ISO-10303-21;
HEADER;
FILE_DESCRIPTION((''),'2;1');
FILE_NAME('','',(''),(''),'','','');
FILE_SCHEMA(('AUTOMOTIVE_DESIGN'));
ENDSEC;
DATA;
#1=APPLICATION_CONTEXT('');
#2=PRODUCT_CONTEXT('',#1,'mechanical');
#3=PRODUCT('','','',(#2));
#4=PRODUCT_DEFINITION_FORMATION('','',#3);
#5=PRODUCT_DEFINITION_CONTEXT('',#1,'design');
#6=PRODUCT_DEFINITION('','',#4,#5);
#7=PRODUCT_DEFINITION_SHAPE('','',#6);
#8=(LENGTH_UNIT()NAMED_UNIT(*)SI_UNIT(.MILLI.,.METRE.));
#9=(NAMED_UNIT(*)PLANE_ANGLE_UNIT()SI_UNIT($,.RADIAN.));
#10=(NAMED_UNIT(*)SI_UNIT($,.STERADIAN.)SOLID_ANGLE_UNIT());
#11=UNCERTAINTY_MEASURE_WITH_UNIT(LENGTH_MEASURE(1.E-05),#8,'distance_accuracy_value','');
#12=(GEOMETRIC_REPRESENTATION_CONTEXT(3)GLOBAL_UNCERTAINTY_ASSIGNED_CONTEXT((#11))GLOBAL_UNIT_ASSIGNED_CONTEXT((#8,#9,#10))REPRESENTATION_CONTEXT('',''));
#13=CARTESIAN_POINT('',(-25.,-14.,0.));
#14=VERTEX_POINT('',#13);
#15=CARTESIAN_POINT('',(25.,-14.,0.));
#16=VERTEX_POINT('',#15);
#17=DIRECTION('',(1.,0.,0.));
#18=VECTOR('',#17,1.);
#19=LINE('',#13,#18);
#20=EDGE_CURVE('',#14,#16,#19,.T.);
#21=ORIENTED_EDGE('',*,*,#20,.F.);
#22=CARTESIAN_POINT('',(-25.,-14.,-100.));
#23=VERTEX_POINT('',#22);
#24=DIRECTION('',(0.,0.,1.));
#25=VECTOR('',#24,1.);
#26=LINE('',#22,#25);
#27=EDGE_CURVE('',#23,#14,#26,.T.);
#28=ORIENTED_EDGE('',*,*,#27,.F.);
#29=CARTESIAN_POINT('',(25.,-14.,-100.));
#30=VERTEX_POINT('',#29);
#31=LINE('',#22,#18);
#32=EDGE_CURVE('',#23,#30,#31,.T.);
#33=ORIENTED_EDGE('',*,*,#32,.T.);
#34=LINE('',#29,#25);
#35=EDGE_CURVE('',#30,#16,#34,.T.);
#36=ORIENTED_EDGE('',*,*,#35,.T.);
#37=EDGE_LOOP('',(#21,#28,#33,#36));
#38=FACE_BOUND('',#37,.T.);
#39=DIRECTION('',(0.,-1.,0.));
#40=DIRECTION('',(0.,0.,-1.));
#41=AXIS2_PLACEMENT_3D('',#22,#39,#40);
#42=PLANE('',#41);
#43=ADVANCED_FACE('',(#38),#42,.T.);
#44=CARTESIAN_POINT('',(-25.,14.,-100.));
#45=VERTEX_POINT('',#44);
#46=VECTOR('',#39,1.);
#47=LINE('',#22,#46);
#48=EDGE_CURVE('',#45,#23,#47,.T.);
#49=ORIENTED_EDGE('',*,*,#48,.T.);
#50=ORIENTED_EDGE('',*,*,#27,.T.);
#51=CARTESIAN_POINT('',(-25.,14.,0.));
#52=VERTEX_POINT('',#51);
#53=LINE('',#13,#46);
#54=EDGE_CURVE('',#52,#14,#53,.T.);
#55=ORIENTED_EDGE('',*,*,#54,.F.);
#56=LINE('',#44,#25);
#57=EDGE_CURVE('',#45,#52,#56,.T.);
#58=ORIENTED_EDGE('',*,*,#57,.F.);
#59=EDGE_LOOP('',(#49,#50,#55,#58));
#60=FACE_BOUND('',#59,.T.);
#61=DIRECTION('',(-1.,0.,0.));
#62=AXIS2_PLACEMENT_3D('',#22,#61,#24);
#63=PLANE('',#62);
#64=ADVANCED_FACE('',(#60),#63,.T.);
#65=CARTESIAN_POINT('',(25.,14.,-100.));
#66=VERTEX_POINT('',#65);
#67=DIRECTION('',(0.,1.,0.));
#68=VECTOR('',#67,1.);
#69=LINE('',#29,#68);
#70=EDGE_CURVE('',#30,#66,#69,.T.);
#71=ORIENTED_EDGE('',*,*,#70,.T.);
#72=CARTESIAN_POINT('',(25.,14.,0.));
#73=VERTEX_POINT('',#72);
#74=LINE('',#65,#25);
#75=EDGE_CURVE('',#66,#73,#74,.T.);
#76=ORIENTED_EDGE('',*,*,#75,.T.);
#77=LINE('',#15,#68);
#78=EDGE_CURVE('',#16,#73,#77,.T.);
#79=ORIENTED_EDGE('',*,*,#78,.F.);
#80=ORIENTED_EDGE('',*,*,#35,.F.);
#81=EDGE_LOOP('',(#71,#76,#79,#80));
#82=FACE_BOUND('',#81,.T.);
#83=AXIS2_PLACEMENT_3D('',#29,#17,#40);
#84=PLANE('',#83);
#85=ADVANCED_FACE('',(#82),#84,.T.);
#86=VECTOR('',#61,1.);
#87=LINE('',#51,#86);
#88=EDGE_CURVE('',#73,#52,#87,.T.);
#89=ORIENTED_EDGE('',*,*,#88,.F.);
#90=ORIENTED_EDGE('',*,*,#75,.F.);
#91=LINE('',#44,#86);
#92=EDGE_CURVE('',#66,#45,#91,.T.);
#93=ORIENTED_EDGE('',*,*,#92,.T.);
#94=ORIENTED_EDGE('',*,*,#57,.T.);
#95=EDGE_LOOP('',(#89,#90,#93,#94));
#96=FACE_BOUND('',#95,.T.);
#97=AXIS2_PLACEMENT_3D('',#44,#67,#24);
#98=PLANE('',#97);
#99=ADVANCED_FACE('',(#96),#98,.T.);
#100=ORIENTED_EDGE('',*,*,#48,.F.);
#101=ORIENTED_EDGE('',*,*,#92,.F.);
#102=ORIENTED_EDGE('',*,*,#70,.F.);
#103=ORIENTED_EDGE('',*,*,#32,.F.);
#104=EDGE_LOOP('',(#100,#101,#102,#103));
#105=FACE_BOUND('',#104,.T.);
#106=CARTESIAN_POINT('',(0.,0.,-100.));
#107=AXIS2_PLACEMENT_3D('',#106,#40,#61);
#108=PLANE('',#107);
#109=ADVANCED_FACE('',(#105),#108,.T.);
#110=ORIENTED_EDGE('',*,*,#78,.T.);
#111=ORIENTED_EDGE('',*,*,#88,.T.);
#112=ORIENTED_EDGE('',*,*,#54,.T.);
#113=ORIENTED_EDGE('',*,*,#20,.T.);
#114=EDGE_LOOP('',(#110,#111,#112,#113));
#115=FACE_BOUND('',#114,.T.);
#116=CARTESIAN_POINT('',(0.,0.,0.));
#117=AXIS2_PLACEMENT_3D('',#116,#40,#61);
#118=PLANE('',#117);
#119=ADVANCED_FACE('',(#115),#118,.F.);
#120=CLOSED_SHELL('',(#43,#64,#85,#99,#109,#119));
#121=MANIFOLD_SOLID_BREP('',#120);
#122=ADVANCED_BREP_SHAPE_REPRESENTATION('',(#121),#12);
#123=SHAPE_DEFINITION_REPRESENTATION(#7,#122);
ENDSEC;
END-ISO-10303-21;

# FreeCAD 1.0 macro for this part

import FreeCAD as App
import Part
import Sketcher

V = App.Vector


def add_polygon(sketch, points):
    """Adds a closed chain of lines whose ends are joined by coincident constraints."""
    first, n = sketch.GeometryCount, len(points)
    for a, b in zip(points, points[1:] + points[:1]):
        sketch.addGeometry(Part.LineSegment(App.Vector(*a, 0), App.Vector(*b, 0)), False)
    for i in range(n):
        sketch.addConstraint(Sketcher.Constraint("Coincident", first + i, 2, first + (i + 1) % n, 1))

doc = App.newDocument("Part")
body = doc.addObject("PartDesign::Body", "Body")

# Sketch on XY plane
sketch1 = body.newObject("Sketcher::SketchObject", "Sketch")
sketch1.AttachmentSupport = (doc.getObject("XY_Plane"), [""])
sketch1.MapMode = "FlatFace"
add_polygon(sketch1, [(-25, 14), (-25, -14), (25, -14), (25, 14)])  # lines 0-3
sketch1.addConstraint(Sketcher.Constraint("Vertical", 0))
sketch1.addConstraint(Sketcher.Constraint("Horizontal", 1))
sketch1.addConstraint(Sketcher.Constraint("Vertical", 2))
sketch1.addConstraint(Sketcher.Constraint("Horizontal", 3))
sketch1.addConstraint(Sketcher.Constraint("Symmetric", 0, 2, 2, 2, -1, 1))
sketch1.addConstraint(Sketcher.Constraint("DistanceX", 1, 1, 1, 2, 50.0))
sketch1.addConstraint(Sketcher.Constraint("DistanceY", 0, 2, 0, 1, 28.0))
pad1 = body.newObject("PartDesign::Pad", "Pad")
pad1.Profile = sketch1
pad1.Length = 100
pad1.Reversed = True

doc.recompute()
